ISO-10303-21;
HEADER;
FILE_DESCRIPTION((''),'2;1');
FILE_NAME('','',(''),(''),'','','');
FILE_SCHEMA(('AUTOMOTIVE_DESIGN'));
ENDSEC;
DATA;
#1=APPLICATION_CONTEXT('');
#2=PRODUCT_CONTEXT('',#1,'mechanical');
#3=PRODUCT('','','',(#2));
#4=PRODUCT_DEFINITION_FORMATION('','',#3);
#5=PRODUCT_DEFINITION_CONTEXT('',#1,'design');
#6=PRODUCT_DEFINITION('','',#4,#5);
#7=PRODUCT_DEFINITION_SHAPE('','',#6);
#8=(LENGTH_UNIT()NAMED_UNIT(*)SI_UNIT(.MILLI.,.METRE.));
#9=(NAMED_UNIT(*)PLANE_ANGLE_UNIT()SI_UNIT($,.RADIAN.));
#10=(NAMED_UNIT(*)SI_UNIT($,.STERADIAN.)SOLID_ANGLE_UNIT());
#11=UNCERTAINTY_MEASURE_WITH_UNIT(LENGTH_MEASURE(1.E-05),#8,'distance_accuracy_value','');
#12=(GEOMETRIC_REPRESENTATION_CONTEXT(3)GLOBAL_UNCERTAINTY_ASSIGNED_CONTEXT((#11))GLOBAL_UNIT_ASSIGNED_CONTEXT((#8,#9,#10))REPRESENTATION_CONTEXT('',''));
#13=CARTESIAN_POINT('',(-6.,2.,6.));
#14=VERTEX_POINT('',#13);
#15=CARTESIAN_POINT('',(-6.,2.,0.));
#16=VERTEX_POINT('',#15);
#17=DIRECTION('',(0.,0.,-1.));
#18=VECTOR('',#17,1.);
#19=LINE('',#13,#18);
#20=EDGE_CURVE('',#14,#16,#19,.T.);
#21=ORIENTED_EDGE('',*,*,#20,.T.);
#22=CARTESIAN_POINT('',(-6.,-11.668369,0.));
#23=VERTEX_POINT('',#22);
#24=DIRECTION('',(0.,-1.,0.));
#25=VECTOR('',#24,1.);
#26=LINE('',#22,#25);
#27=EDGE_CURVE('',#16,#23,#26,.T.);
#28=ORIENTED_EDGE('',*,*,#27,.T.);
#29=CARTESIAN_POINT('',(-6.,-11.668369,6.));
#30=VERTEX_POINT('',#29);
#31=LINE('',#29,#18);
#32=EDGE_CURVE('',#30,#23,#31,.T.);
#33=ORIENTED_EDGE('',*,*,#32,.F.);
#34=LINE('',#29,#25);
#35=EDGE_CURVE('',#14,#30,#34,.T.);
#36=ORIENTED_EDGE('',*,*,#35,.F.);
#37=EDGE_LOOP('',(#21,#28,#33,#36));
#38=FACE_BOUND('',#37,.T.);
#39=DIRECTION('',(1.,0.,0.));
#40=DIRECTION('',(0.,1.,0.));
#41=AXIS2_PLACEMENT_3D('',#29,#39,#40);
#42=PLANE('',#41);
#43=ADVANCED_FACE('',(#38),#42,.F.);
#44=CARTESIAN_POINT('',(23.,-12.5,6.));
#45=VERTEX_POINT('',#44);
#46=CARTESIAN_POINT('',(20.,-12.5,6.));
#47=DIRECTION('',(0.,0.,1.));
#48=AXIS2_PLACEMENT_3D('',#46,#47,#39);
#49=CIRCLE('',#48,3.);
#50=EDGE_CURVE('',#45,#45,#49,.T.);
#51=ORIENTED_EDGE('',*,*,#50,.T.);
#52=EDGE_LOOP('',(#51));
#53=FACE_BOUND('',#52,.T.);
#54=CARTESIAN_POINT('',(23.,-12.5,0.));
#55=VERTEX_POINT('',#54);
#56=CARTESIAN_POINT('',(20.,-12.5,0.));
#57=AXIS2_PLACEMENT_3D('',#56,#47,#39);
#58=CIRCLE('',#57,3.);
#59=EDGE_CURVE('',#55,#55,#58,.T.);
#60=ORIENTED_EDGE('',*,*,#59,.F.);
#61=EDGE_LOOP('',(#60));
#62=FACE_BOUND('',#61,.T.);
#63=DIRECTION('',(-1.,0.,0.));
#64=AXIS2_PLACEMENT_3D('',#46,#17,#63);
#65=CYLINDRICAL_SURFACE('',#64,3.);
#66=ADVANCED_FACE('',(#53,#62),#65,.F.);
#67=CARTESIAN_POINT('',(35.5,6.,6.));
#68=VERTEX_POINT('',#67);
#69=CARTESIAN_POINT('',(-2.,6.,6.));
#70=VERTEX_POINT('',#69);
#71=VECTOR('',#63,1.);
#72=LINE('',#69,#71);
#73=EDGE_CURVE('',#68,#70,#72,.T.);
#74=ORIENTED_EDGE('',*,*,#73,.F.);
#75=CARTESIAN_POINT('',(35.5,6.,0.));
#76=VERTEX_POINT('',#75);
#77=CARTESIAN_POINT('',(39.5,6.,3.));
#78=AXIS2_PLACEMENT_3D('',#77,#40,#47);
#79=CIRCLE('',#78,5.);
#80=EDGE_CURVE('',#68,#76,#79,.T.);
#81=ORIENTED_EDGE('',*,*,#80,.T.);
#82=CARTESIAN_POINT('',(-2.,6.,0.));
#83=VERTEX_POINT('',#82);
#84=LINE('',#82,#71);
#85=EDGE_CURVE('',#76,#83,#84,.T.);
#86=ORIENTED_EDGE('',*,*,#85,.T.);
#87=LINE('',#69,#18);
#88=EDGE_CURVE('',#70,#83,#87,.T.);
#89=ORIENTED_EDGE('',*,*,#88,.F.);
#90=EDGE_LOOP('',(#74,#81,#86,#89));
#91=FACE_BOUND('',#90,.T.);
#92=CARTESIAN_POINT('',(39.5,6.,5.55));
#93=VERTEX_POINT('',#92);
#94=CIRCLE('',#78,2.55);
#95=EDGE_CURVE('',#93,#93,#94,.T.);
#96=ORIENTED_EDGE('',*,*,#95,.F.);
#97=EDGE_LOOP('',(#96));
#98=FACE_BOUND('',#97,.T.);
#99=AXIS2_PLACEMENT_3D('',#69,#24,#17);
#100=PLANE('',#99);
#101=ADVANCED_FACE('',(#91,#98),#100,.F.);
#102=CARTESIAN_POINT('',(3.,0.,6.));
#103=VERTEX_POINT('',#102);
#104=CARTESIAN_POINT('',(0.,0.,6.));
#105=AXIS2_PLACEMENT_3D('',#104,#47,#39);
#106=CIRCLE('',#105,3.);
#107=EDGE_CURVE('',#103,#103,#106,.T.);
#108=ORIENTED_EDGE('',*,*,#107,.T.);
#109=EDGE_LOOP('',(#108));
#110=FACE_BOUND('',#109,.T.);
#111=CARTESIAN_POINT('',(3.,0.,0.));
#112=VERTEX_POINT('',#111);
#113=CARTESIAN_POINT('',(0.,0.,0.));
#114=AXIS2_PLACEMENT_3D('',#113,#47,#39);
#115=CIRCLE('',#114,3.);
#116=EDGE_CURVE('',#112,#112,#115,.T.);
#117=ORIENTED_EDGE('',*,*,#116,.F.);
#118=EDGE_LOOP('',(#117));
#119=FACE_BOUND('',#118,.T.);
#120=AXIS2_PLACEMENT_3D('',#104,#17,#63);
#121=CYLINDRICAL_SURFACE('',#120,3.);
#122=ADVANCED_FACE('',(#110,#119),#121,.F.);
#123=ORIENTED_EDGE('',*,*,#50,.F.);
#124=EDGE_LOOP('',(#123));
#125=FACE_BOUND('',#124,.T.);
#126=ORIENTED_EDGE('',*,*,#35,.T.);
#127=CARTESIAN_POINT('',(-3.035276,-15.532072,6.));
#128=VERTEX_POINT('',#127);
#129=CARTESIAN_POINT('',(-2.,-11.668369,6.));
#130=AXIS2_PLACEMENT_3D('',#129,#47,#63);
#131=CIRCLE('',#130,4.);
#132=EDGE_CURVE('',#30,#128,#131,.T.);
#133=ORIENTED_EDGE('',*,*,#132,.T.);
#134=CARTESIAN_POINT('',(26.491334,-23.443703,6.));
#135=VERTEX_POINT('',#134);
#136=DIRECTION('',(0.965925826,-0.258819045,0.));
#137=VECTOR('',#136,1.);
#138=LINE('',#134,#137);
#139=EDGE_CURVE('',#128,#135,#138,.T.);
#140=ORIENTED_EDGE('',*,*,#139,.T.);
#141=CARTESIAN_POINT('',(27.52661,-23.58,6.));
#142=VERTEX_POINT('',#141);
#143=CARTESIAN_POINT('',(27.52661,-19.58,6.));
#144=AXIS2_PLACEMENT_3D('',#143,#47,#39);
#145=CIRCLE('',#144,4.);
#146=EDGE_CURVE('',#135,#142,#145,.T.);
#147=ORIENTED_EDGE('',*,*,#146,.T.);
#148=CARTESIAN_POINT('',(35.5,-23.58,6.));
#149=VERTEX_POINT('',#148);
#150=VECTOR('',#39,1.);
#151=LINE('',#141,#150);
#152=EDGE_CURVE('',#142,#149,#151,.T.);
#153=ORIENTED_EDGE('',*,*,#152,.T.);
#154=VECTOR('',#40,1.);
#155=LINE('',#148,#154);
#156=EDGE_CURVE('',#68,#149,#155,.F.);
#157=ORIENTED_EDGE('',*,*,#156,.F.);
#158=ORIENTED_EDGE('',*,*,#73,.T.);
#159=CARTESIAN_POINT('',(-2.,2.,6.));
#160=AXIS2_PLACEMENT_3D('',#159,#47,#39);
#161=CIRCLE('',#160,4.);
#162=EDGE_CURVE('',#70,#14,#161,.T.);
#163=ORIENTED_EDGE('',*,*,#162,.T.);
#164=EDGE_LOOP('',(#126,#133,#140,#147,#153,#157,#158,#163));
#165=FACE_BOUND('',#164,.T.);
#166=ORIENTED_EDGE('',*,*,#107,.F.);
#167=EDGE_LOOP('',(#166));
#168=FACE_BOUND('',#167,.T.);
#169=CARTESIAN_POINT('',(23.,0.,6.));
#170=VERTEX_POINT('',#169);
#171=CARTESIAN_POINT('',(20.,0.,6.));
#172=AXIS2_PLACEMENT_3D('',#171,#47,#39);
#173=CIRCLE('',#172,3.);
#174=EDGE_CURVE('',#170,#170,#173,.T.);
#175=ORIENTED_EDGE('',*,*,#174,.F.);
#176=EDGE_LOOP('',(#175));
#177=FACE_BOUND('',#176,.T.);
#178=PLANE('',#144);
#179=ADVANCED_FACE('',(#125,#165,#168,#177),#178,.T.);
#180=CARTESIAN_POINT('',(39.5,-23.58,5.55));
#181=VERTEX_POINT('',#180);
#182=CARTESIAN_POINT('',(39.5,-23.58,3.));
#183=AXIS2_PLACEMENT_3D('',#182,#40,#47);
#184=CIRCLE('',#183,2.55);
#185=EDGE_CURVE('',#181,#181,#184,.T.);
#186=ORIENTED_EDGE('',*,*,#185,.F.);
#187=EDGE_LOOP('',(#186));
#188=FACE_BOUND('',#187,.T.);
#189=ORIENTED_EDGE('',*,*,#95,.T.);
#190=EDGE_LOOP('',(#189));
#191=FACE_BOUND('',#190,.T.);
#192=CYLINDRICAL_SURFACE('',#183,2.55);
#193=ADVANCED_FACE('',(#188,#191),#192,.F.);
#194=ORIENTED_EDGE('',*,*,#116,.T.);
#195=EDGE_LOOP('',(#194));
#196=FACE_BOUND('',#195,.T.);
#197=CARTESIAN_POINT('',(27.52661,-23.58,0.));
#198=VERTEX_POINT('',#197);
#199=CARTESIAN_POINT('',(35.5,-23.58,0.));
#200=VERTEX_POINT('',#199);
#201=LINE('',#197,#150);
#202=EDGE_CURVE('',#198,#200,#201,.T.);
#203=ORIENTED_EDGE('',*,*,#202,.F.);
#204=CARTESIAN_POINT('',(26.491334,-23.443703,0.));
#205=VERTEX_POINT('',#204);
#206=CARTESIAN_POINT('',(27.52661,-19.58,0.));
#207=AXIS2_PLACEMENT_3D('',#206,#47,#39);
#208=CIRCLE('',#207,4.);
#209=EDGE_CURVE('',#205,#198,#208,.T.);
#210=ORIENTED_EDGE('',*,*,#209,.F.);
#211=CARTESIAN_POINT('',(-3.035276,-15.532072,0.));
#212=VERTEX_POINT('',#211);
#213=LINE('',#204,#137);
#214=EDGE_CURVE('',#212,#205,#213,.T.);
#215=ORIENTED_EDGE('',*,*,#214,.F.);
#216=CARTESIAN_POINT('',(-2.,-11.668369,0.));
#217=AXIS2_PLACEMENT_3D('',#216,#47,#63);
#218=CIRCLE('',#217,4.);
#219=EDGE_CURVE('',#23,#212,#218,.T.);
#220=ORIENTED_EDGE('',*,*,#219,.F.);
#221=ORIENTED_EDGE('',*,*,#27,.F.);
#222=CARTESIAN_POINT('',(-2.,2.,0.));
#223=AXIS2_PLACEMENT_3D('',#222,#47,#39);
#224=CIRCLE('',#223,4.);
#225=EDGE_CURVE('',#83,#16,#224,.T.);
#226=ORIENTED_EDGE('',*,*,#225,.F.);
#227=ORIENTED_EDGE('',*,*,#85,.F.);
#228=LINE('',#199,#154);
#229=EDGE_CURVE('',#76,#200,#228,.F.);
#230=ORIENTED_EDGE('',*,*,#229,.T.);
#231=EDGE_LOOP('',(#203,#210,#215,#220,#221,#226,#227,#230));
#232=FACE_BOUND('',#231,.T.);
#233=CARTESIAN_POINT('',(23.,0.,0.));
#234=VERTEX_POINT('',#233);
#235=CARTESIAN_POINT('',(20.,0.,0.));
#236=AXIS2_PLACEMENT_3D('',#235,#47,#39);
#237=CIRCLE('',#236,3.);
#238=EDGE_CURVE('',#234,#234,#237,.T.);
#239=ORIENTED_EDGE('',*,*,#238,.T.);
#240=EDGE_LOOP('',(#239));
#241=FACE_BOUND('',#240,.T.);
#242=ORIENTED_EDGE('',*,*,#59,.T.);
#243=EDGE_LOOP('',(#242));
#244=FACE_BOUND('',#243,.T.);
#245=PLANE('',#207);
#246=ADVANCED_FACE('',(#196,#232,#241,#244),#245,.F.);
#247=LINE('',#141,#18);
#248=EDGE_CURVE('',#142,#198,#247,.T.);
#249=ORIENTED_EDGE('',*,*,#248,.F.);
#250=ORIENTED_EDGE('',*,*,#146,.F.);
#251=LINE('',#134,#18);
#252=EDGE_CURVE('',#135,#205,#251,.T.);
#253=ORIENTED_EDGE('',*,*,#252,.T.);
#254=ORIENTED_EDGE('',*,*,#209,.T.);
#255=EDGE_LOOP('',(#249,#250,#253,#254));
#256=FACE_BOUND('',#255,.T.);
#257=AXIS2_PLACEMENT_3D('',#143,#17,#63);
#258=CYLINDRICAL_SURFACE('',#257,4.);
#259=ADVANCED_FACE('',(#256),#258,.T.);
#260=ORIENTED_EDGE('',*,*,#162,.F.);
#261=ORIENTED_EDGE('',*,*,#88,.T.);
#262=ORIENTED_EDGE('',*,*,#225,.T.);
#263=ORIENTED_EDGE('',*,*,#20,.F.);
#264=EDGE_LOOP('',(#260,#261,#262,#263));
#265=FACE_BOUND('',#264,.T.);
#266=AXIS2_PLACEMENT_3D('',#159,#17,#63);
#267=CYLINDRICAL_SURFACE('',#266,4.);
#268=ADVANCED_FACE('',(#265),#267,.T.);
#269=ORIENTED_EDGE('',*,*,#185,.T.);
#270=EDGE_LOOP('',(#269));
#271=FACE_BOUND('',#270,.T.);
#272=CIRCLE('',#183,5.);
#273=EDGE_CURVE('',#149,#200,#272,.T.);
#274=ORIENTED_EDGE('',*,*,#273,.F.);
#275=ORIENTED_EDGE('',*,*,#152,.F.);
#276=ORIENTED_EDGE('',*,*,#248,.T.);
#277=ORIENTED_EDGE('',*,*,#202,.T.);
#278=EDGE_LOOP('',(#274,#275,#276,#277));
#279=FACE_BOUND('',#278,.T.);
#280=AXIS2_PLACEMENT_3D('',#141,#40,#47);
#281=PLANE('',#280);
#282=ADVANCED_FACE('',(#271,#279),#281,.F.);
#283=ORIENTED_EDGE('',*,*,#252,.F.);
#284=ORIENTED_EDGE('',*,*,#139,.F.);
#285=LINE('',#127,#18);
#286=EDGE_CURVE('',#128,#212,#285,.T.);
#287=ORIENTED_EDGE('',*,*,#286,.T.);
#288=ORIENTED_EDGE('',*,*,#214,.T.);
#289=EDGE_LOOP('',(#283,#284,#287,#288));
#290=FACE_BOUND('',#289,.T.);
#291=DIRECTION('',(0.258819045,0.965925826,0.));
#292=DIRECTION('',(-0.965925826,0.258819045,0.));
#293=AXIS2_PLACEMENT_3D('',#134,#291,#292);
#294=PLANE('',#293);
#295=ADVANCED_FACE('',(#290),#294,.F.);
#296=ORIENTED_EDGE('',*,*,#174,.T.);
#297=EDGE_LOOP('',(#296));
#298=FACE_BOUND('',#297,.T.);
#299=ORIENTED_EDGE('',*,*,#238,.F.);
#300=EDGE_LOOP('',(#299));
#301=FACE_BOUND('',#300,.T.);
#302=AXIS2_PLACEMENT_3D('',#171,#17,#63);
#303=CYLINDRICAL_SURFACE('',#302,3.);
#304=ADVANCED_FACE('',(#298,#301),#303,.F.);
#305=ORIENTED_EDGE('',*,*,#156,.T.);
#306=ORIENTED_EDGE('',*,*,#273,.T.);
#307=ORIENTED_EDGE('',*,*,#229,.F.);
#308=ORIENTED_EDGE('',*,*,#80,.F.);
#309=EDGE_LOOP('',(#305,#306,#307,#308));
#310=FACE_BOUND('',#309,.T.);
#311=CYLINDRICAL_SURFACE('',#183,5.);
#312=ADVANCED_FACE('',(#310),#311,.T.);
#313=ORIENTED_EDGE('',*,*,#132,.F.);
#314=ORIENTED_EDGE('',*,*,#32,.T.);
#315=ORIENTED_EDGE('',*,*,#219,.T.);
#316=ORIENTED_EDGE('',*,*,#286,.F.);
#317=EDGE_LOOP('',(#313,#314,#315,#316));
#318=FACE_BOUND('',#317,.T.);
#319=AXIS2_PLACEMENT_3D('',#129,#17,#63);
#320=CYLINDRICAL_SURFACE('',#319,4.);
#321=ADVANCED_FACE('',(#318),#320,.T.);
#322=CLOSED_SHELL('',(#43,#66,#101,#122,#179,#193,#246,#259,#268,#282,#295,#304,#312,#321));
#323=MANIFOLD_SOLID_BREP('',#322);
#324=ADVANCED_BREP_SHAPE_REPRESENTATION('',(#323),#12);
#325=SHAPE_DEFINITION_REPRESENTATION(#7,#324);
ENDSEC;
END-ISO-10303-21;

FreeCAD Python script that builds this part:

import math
import FreeCAD as App
import Part
import Sketcher

V = App.Vector
Q = App.Units.Quantity

doc = App.newDocument("Part")
body = doc.addObject("PartDesign::Body", "Body")

# Sketch on XY plane
sketch1 = body.newObject("Sketcher::SketchObject", "Sketch")
sketch1.AttachmentSupport = (doc.getObject("XY_Plane"), [""])
sketch1.MapMode = "FlatFace"
sketch1.addGeometry(Part.LineSegment(V(-3, -15.5, 0), V(26.5, -23.4, 0)), False)
sketch1.addGeometry(Part.ArcOfCircle(Part.Circle(V(27.5, -19.6, 0), V(0, 0, 1), 4), math.radians(-105), math.radians(-90)), False)
sketch1.addGeometry(Part.LineSegment(V(27.5, -23.6, 0), V(39.5, -23.6, 0)), False)
sketch1.addGeometry(Part.LineSegment(V(39.5, -23.6, 0), V(39.5, 6, 0)), False)
sketch1.addGeometry(Part.LineSegment(V(39.5, 6, 0), V(-2, 6, 0)), False)
sketch1.addGeometry(Part.ArcOfCircle(Part.Circle(V(-2, 2, 0), V(0, 0, 1), 4), math.radians(90), math.radians(180)), False)
sketch1.addGeometry(Part.LineSegment(V(-6, 2, 0), V(-6, -11.7, 0)), False)
sketch1.addGeometry(Part.ArcOfCircle(Part.Circle(V(-2, -11.7, 0), V(0, 0, 1), 4), math.radians(180), math.radians(255)), False)
sketch1.addGeometry(Part.Circle(V(20, -12.5, 0), V(0, 0, 1), 3), False)
sketch1.addGeometry(Part.Circle(V(20, 0, 0), V(0, 0, 1), 3), False)
sketch1.addGeometry(Part.Circle(V(0, 0, 0), V(0, 0, 1), 3), False)
sketch1.addConstraint(Sketcher.Constraint("Tangent", 0, 2, 1, 1))
sketch1.addConstraint(Sketcher.Constraint("Tangent", 1, 2, 2, 1))
sketch1.addConstraint(Sketcher.Constraint("Coincident", 2, 2, 3, 1))
sketch1.addConstraint(Sketcher.Constraint("Coincident", 3, 2, 4, 1))
sketch1.addConstraint(Sketcher.Constraint("Tangent", 4, 2, 5, 1))
sketch1.addConstraint(Sketcher.Constraint("Tangent", 5, 2, 6, 1))
sketch1.addConstraint(Sketcher.Constraint("Tangent", 6, 2, 7, 1))
sketch1.addConstraint(Sketcher.Constraint("Tangent", 7, 2, 0, 1))
sketch1.addConstraint(Sketcher.Constraint("Horizontal", 2))
sketch1.addConstraint(Sketcher.Constraint("Vertical", 3))
sketch1.addConstraint(Sketcher.Constraint("Horizontal", 4))
sketch1.addConstraint(Sketcher.Constraint("Vertical", 6))
sketch1.addConstraint(Sketcher.Constraint("Coincident", 10, 3, -1, 1))
sketch1.addConstraint(Sketcher.Constraint("Equal", 1, 5))
sketch1.addConstraint(Sketcher.Constraint("Equal", 5, 7))
sketch1.addConstraint(Sketcher.Constraint("Equal", 8, 9))
sketch1.addConstraint(Sketcher.Constraint("Equal", 9, 10))
sketch1.addConstraint(Sketcher.Constraint("PointOnObject", 9, 3, -1))
sketch1.addConstraint(Sketcher.Constraint("Vertical", 8, 3, 9, 3))
sketch1.addConstraint(Sketcher.Constraint("Diameter", 8, Q("6 mm")))
sketch1.addConstraint(Sketcher.Constraint("Radius", 1, Q("4 mm")))
sketch1.addConstraint(Sketcher.Constraint("Angle", 0, Q("-15 deg")))
sketch1.addConstraint(Sketcher.Constraint("DistanceX", 4, 2, 4, 1, Q("41.5 mm")))
sketch1.addConstraint(Sketcher.Constraint("DistanceX", 5, 3, -1, 1, Q("2 mm")))
sketch1.addConstraint(Sketcher.Constraint("DistanceY", -1, 1, 5, 3, Q("2 mm")))
sketch1.addConstraint(Sketcher.Constraint("DistanceX", -1, 1, 8, 3, Q("20 mm")))
sketch1.addConstraint(Sketcher.Constraint("DistanceY", 3, 1, 3, 2, Q("29.58 mm")))
sketch1.addConstraint(Sketcher.Constraint("DistanceY", 8, 3, -1, 1, Q("12.5 mm")))
sketch1.addConstraint(Sketcher.Constraint("DistanceX", 2, 1, 2, 2, Q("11.97339 mm")))
pad1 = body.newObject("PartDesign::Pad", "Pad")
pad1.Profile = sketch1
pad1.Length = 6

# Sketch on XZ plane
sketch2 = body.newObject("Sketcher::SketchObject", "Sketch001")
sketch2.AttachmentSupport = (doc.getObject("XZ_Plane"), [""])
sketch2.MapMode = "FlatFace"
sketch2.AttachmentOffset = App.Placement(V(0, 0, -6), App.Rotation())
sketch2.addGeometry(Part.Circle(V(40, 3, 0), V(0, 0, 1), 5), False)
sketch2.addConstraint(Sketcher.Constraint("Diameter", 0, Q("10 mm")))
sketch2.addConstraint(Sketcher.Constraint("DistanceY", -1, 1, 0, 3, Q("3 mm")))
sketch2.addConstraint(Sketcher.Constraint("DistanceX", -1, 1, 0, 3, Q("39.5 mm")))
pad2 = body.newObject("PartDesign::Pad", "Pad001")
pad2.Profile = sketch2
pad2.Type = "UpToLast"

# Sketch on XZ plane
sketch3 = body.newObject("Sketcher::SketchObject", "Sketch002")
sketch3.AttachmentSupport = (doc.getObject("XZ_Plane"), [""])
sketch3.MapMode = "FlatFace"
sketch3.AttachmentOffset = App.Placement(V(0, 0, -6), App.Rotation())
sketch3.addGeometry(Part.Circle(V(39.5, 3, 0), V(0, 0, 1), 2.5), False)
sketch3.addConstraint(Sketcher.Constraint("Diameter", 0, Q("5.1 mm")))
sketch3.addConstraint(Sketcher.Constraint("DistanceY", -1, 1, 0, 3, Q("3 mm")))
sketch3.addConstraint(Sketcher.Constraint("DistanceX", -1, 1, 0, 3, Q("39.5 mm")))
pocket1 = body.newObject("PartDesign::Pocket", "Pocket")
pocket1.Profile = sketch3
pocket1.Type = "ThroughAll"
pocket1.Reversed = True

doc.recompute()
